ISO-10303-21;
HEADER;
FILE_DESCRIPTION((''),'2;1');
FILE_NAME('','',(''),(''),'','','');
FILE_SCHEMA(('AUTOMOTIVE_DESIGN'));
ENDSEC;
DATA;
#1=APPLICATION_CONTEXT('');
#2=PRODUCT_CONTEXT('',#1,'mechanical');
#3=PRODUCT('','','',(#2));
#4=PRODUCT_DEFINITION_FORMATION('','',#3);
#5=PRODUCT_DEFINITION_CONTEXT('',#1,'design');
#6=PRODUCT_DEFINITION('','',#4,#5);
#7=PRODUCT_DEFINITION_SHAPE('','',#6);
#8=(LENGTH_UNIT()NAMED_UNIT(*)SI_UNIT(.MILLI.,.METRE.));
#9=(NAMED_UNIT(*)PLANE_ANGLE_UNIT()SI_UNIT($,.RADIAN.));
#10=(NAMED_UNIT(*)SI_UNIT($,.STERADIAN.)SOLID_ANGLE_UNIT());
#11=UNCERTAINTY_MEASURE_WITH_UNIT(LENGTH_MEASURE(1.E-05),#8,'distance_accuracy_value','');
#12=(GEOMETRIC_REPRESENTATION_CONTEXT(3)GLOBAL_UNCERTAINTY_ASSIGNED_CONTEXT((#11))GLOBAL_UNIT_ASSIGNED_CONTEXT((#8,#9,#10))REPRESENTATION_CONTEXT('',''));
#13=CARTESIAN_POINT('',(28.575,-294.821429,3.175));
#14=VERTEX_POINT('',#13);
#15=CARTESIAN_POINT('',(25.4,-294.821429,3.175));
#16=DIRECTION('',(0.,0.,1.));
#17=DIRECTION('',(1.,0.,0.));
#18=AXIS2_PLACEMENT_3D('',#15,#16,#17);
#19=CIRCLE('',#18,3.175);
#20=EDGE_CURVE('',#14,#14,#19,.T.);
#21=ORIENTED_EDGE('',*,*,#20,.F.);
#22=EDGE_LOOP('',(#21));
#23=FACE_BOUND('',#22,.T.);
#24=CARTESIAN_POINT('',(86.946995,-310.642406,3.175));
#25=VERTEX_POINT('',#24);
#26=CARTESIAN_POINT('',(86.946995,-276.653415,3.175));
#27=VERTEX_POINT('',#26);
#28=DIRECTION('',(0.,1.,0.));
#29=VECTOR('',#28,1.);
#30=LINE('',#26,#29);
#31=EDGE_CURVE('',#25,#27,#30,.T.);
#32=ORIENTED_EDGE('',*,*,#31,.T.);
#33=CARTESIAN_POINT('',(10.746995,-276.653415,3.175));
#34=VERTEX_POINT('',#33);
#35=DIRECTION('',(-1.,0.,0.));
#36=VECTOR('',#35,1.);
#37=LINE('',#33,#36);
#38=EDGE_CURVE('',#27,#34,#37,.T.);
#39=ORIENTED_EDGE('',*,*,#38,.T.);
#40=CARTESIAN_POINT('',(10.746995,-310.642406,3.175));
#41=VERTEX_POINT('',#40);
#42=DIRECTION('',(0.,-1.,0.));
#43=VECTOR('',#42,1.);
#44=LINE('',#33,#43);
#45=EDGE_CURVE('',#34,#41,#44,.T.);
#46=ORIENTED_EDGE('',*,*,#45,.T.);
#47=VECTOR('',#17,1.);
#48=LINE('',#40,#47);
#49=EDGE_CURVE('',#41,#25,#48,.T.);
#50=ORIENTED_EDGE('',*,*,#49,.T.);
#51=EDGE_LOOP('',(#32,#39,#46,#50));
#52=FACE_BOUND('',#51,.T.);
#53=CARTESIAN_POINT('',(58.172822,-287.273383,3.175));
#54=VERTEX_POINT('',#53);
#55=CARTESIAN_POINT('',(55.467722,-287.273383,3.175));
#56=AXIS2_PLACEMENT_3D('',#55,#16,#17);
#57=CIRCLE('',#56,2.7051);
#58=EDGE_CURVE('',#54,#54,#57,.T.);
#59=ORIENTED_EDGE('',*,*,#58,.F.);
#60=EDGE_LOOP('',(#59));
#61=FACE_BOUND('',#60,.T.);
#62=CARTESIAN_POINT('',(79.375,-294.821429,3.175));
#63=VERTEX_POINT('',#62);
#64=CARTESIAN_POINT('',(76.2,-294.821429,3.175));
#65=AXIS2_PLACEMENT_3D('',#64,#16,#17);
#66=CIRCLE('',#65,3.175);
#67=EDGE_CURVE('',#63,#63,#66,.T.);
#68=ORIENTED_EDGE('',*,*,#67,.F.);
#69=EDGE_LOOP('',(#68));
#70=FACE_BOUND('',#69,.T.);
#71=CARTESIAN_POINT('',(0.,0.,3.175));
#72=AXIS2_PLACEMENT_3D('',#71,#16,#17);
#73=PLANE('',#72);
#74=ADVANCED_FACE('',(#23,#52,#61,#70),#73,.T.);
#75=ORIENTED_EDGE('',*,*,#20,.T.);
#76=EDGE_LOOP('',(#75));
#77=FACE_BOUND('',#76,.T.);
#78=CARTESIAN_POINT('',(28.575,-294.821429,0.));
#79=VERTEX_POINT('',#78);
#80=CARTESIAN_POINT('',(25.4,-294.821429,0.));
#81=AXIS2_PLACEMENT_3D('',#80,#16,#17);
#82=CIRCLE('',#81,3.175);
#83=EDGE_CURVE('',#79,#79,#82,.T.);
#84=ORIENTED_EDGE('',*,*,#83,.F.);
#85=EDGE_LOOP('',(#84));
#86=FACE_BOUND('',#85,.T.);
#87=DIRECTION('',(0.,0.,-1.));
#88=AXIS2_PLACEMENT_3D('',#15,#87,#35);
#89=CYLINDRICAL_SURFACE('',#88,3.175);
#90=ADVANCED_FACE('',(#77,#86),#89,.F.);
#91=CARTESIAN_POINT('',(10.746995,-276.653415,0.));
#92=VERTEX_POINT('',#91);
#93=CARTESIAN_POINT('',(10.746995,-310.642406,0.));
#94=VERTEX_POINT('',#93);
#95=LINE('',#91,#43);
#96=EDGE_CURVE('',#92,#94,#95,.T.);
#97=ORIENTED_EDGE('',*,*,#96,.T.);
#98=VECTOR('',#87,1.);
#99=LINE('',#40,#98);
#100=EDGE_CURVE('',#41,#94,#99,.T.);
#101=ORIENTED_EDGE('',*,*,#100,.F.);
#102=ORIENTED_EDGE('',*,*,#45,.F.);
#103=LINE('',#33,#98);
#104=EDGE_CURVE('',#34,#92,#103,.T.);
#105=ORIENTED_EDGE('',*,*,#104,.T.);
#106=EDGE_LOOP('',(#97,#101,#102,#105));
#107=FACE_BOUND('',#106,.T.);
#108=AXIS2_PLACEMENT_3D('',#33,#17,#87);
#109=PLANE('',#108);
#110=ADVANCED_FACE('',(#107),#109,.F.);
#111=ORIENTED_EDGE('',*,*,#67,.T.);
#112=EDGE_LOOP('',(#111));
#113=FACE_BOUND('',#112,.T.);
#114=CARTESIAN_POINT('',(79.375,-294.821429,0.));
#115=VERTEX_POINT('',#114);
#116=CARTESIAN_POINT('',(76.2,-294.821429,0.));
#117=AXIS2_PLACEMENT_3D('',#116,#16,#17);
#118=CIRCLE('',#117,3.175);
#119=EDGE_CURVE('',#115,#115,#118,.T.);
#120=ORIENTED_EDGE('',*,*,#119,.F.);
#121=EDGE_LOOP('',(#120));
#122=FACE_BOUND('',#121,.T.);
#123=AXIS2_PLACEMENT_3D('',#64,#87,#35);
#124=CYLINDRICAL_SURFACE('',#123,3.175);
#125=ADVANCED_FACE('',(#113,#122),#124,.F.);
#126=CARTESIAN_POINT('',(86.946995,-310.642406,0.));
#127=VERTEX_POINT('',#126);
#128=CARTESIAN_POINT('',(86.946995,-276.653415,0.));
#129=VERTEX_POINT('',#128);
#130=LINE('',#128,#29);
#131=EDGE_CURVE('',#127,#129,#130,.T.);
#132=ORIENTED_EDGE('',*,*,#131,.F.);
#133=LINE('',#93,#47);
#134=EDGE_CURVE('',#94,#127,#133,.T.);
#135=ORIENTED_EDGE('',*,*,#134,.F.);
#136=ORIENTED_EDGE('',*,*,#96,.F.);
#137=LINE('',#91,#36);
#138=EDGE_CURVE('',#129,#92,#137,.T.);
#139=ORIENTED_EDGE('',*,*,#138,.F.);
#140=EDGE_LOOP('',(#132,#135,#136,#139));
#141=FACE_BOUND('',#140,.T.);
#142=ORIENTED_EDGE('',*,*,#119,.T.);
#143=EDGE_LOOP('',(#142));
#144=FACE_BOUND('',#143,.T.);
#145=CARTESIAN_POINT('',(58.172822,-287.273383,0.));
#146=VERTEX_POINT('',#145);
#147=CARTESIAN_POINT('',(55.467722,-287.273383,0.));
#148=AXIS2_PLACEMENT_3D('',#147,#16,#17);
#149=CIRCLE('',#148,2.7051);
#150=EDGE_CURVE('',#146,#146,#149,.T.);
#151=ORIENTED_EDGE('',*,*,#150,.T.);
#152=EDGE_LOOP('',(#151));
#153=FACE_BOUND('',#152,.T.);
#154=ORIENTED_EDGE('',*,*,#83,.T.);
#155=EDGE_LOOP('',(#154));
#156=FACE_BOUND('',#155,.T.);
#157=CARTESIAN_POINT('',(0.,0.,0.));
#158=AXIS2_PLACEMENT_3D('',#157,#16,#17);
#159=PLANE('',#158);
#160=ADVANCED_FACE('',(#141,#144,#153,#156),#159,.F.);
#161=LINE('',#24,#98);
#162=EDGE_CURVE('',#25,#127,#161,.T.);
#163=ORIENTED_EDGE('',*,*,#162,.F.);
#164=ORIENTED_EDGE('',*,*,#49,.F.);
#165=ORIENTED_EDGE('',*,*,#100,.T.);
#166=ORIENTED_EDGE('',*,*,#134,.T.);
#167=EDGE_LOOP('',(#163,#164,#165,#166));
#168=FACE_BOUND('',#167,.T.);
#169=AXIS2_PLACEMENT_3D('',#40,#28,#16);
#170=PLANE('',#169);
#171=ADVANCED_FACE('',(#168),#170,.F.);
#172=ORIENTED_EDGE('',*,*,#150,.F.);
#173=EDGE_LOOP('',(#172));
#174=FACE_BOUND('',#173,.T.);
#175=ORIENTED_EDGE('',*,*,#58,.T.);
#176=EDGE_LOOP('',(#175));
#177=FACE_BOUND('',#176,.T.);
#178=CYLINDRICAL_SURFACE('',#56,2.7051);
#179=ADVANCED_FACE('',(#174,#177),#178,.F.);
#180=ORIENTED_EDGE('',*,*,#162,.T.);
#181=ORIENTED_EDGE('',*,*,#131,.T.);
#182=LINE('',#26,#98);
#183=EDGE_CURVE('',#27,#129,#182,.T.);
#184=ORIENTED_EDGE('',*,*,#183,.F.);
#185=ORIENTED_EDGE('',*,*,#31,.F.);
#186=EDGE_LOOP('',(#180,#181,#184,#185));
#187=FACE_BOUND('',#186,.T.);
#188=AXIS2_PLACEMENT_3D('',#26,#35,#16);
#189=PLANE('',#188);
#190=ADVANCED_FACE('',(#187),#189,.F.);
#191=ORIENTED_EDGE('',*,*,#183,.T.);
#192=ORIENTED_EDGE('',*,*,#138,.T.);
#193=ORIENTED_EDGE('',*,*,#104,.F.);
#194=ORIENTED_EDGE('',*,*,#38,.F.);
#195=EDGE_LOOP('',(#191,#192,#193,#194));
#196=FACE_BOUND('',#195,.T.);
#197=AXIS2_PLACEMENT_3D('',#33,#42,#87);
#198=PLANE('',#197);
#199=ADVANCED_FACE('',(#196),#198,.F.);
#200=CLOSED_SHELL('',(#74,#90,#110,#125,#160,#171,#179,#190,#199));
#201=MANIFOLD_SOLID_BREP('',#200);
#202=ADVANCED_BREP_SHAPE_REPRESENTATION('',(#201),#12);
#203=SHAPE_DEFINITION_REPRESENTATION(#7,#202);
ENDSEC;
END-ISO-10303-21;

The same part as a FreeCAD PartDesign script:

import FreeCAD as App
import Part
import Sketcher
Q = App.Units.Quantity

doc = App.newDocument("Part")
body = doc.addObject("PartDesign::Body", "Body")

# Sketch on XY plane
sketch1 = body.newObject("Sketcher::SketchObject", "Sketch")
sketch1.AttachmentSupport = (doc.getObject("XY_Plane"), [""])
sketch1.MapMode = "FlatFace"
sketch1.addGeometry([
    Part.LineSegment(App.Vector(10.746995, -276.653415, 0), App.Vector(10.746995, -310.642406, 0)),  # 0
    Part.LineSegment(App.Vector(10.746995, -310.642406, 0), App.Vector(86.946995, -310.642406, 0)),  # 1
    Part.LineSegment(App.Vector(86.946995, -310.642406, 0), App.Vector(86.946995, -276.653415, 0)),  # 2
    Part.LineSegment(App.Vector(86.946995, -276.653415, 0), App.Vector(10.746995, -276.653415, 0)),  # 3
    Part.Circle(App.Vector(25.4, -294.821429, 0), App.Vector(0, 0, 1), 3.175),  # 4
    Part.Circle(App.Vector(76.2, -294.821429, 0), App.Vector(0, 0, 1), 3.175),  # 5
], False)
sketch1.addConstraint([
    Sketcher.Constraint("Coincident", 0, 2, 1, 1),
    Sketcher.Constraint("Coincident", 1, 2, 2, 1),
    Sketcher.Constraint("Coincident", 2, 2, 3, 1),
    Sketcher.Constraint("Coincident", 3, 2, 0, 1),
    Sketcher.Constraint("Vertical", 0),
    Sketcher.Constraint("Horizontal", 1),
    Sketcher.Constraint("Vertical", 2),
    Sketcher.Constraint("Horizontal", 3),
    Sketcher.Constraint("Equal", 4, 5),
    Sketcher.Constraint("Horizontal", 4, 3, 5, 3),
    Sketcher.Constraint("Diameter", 4, Q("0.25 in")),
    Sketcher.Constraint("DistanceX", 1, 1, 1, 2, Q("3 in")),
    Sketcher.Constraint("DistanceX", -1, 1, 4, 3, Q("1 in")),
    Sketcher.Constraint("DistanceX", -1, 1, 5, 3, Q("3 in")),
    Sketcher.Constraint("DistanceY", 0, 2, 0, 1, Q("33.988991 mm")),
    Sketcher.Constraint("DistanceY", 4, 3, -1, 1, Q("294.821429 mm")),
    Sketcher.Constraint("DistanceX", -1, 1, 0, 2, Q("10.746995 mm")),
    Sketcher.Constraint("DistanceY", 0, 2, -1, 1, Q("310.642406 mm")),
])
pad1 = body.newObject("PartDesign::Pad", "Pad")
pad1.Profile = sketch1
pad1.Length = Q("0.125 in")

# Sketch on XY plane
sketch2 = body.newObject("Sketcher::SketchObject", "Sketch001")
sketch2.AttachmentSupport = (doc.getObject("XY_Plane"), [""])
sketch2.MapMode = "FlatFace"
sketch2.AttachmentOffset = App.Placement(App.Vector(0, 0, 0.125 * 25.4), App.Rotation())
sketch2.addGeometry(Part.Circle(App.Vector(55.467722, -287.273383, 0), App.Vector(0, 0, 1), 2.7051), False)
sketch2.addConstraint([
    Sketcher.Constraint("Diameter", 0, Q("0.213 in")),
    Sketcher.Constraint("DistanceX", -1, 1, 0, 3, Q("55.467722 mm")),
    Sketcher.Constraint("DistanceY", 0, 3, -1, 1, Q("287.273383 mm")),
])
doc.recompute()
hole = body.newObject("PartDesign::Hole", "Hole")
hole.Profile = sketch2
hole.ThreadType = "None"
hole.Diameter = Q("0.213 in")
hole.DepthType = "ThroughAll"

doc.recompute()
